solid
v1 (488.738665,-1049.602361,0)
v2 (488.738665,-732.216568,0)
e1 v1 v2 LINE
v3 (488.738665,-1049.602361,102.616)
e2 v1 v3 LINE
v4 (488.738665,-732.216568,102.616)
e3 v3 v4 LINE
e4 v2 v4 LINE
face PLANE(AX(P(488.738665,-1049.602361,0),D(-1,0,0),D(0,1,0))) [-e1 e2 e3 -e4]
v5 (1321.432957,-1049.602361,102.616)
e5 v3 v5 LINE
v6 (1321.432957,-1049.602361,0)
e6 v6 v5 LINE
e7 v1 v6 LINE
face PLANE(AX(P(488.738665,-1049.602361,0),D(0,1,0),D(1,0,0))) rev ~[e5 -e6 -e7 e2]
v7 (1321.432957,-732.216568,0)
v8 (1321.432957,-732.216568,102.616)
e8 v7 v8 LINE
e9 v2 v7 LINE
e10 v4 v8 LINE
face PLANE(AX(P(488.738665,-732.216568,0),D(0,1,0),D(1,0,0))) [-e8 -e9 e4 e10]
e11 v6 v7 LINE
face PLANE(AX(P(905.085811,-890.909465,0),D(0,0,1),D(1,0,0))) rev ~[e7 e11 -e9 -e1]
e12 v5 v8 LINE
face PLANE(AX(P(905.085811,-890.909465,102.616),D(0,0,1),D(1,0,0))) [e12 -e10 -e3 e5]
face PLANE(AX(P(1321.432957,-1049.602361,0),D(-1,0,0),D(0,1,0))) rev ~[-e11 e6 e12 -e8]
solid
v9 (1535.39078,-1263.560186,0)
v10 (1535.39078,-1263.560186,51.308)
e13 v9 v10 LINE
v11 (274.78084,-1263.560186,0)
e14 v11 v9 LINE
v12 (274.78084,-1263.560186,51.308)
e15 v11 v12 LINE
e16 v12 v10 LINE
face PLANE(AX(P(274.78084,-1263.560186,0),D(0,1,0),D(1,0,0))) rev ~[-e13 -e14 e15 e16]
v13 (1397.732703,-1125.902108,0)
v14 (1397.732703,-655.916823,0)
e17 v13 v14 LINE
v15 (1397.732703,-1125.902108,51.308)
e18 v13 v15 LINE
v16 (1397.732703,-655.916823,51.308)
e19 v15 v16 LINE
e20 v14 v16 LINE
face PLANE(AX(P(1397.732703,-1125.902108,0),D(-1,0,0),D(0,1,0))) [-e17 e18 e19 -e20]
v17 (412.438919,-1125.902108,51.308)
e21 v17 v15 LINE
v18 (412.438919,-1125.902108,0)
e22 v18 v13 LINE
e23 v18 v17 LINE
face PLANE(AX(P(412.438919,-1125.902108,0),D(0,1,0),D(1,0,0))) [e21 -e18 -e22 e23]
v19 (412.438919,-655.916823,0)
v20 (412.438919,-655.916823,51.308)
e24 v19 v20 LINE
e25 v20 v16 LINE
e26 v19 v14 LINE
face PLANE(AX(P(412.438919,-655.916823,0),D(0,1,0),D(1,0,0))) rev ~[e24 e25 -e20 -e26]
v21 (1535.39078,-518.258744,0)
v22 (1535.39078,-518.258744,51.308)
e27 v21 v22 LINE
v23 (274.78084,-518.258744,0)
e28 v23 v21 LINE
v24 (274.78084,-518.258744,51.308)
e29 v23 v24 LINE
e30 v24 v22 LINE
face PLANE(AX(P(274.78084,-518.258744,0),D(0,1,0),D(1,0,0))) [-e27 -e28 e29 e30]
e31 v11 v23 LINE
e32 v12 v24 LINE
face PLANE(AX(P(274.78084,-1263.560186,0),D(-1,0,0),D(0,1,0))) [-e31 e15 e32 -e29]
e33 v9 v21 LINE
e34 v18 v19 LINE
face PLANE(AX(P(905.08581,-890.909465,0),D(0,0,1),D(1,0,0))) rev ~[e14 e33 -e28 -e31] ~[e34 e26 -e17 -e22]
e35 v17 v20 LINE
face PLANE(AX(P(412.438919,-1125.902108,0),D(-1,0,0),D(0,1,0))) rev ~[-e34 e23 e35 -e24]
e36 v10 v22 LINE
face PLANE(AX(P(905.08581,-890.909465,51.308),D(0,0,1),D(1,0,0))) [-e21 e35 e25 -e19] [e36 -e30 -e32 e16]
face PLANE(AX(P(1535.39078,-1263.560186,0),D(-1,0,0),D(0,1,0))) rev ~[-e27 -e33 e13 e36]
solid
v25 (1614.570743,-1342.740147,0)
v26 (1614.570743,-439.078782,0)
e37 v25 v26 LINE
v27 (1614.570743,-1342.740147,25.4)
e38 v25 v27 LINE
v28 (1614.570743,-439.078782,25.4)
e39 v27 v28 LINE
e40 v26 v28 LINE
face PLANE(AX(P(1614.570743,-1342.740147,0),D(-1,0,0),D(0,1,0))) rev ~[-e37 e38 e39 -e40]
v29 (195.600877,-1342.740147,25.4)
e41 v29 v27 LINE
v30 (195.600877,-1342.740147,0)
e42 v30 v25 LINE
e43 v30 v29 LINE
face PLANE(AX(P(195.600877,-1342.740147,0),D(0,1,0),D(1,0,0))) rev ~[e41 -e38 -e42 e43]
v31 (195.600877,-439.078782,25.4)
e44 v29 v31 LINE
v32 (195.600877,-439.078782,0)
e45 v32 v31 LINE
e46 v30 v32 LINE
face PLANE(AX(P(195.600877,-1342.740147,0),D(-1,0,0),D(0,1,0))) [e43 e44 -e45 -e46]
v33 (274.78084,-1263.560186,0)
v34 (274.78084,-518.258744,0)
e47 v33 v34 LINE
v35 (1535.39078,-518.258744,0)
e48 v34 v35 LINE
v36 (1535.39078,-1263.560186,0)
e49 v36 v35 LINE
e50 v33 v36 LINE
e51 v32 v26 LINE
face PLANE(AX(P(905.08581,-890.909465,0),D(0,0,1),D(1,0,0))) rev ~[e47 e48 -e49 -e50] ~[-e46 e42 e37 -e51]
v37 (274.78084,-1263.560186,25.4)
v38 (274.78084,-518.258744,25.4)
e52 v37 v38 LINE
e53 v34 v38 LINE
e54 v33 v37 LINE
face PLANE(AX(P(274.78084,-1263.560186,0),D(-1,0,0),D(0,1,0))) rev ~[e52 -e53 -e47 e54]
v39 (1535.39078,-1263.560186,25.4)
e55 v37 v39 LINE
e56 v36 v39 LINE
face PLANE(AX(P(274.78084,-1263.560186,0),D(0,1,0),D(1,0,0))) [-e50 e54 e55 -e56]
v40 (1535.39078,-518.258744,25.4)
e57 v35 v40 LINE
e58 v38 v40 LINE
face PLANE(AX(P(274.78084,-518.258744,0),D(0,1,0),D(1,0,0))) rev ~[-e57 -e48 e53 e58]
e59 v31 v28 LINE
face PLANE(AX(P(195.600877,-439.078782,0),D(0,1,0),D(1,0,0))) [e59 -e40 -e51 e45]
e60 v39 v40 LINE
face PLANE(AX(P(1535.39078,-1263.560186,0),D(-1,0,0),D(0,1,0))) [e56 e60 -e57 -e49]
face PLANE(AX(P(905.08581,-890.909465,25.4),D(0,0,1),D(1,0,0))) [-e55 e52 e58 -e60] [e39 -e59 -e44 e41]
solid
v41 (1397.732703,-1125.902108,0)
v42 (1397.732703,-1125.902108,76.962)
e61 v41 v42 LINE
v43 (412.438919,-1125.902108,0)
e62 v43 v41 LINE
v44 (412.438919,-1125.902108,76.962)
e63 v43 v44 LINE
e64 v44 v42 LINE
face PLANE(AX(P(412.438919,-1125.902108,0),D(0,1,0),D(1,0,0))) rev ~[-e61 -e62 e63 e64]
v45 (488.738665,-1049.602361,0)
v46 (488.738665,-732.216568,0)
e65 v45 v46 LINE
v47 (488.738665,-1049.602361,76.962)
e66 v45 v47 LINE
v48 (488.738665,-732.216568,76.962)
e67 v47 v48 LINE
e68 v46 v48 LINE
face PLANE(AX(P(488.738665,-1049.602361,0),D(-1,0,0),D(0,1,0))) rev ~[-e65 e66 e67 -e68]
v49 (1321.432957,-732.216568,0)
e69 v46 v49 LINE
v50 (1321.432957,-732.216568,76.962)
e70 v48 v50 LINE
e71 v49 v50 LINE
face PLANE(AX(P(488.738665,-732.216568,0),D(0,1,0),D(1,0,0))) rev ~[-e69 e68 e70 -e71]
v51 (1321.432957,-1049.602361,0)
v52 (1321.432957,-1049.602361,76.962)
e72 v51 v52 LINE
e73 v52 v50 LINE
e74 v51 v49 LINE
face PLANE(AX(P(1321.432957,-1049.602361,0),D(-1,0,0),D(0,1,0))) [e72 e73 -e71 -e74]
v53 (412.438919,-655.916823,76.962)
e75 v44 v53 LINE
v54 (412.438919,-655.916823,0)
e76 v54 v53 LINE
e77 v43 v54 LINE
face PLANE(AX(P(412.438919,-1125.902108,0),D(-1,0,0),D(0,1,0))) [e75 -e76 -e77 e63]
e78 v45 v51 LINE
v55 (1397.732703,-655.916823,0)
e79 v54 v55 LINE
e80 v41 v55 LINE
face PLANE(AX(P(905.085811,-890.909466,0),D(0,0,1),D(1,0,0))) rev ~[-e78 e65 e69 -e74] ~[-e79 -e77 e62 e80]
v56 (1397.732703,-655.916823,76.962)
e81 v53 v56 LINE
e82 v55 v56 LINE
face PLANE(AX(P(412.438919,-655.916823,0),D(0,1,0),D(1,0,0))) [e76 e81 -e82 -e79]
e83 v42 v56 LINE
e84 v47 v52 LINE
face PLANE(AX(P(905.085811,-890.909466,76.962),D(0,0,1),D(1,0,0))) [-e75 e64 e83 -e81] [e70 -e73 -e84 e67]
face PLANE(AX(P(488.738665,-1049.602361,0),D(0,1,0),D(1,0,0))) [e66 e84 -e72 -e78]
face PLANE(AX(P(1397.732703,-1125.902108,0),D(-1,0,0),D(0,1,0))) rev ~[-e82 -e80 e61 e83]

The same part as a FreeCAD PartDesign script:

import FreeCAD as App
import Part
import Sketcher
from FreeCAD import Vector


def add_polygon(sketch, points):
    """Adds a closed chain of lines whose ends are joined by coincident constraints."""
    first, n = sketch.GeometryCount, len(points)
    for a, b in zip(points, points[1:] + points[:1]):
        sketch.addGeometry(Part.LineSegment(App.Vector(*a, 0), App.Vector(*b, 0)), False)
    for i in range(n):
        sketch.addConstraint(Sketcher.Constraint("Coincident", first + i, 2, first + (i + 1) % n, 1))

doc = App.newDocument("Part")
params = doc.addObject("Spreadsheet::Sheet", "Params")
for row, (alias, value) in enumerate([
    ("pad1_length", "1 in"),
    ("pad2_length", "2.02 in"),
    ("pad3_length", "3.03 in"),
    ("pad4_length", "4.04 in"),
], start=1):
    params.set(f"A{row}", alias)
    params.set(f"B{row}", "=" + value)
    params.setAlias(f"B{row}", alias)

body = doc.addObject("PartDesign::Body", "Body")

# Sketch on XY plane
sketch1 = body.newObject("Sketcher::SketchObject", "Sketch")
sketch1.AttachmentSupport = (doc.getObject("XY_Plane"), [""])
sketch1.MapMode = "FlatFace"
add_polygon(sketch1, [(195.600877, -439.078782), (195.600877, -1342.740147), (1614.570743, -1342.740147), (1614.570743, -439.078782)])  # lines 0-3
add_polygon(sketch1, [(1535.39078, -1263.560186), (274.78084, -1263.560186), (274.78084, -518.258744), (1535.39078, -518.258744)])  # lines 4-7
sketch1.addConstraint([
    Sketcher.Constraint("Vertical", 0),
    Sketcher.Constraint("Horizontal", 1),
    Sketcher.Constraint("Vertical", 2),
    Sketcher.Constraint("Horizontal", 3),
    Sketcher.Constraint("Horizontal", 4),
    Sketcher.Constraint("Vertical", 5),
    Sketcher.Constraint("Horizontal", 6),
    Sketcher.Constraint("Vertical", 7),
    Sketcher.Constraint("DistanceX", 4, 2, 4, 1, 1260.609941),
    Sketcher.Constraint("DistanceY", 5, 1, 5, 2, 745.301442),
    Sketcher.Constraint("DistanceX", 1, 1, 1, 2, 1418.969865),
    Sketcher.Constraint("DistanceY", 0, 2, 0, 1, 903.661365),
    Sketcher.Constraint("DistanceX", -1, 1, 4, 2, 274.78084),
    Sketcher.Constraint("DistanceY", 0, 2, 4, 2, 79.179961),
    Sketcher.Constraint("DistanceX", -1, 1, 0, 2, 195.600877),
    Sketcher.Constraint("DistanceY", 0, 2, -1, 1, 1342.740147),
])
pad1 = body.newObject("PartDesign::Pad", "Pad")
pad1.Profile = sketch1
pad1.setExpression("Length", "Params.pad1_length")
body2 = doc.addObject("PartDesign::Body", "Body001")

# Sketch on XY plane
sketch2 = body2.newObject("Sketcher::SketchObject", "Sketch001")
sketch2.AttachmentSupport = (doc.getObject("XY_Plane001"), [""])
sketch2.MapMode = "FlatFace"
add_polygon(sketch2, [(274.78084, -518.258744), (274.78084, -1263.560186), (1535.39078, -1263.560186), (1535.39078, -518.258744)])  # lines 0-3
add_polygon(sketch2, [(1397.732703, -1125.902108), (412.438919, -1125.902108), (412.438919, -655.916823), (1397.732703, -655.916823)])  # lines 4-7
sketch2.addConstraint([
    Sketcher.Constraint("Vertical", 0),
    Sketcher.Constraint("Horizontal", 1),
    Sketcher.Constraint("Vertical", 2),
    Sketcher.Constraint("Horizontal", 3),
    Sketcher.Constraint("Horizontal", 4),
    Sketcher.Constraint("Vertical", 5),
    Sketcher.Constraint("Horizontal", 6),
    Sketcher.Constraint("Vertical", 7),
    Sketcher.Constraint("DistanceX", 1, 1, 1, 2, 1260.609941),
    Sketcher.Constraint("DistanceY", 0, 2, 0, 1, 745.301442),
    Sketcher.Constraint("DistanceX", 4, 2, 4, 1, 985.293784),
    Sketcher.Constraint("DistanceY", 5, 1, 5, 2, 469.985285),
    Sketcher.Constraint("DistanceX", -1, 1, 0, 2, 274.78084),
    Sketcher.Constraint("DistanceX", -1, 1, 4, 2, 412.438919),
    Sketcher.Constraint("DistanceY", 4, 2, -1, 1, 1125.902108),
    Sketcher.Constraint("DistanceY", 5, 2, 3, 2, 137.658079),
])
pad2 = body2.newObject("PartDesign::Pad", "Pad001")
pad2.Profile = sketch2
pad2.setExpression("Length", "Params.pad2_length")
body3 = doc.addObject("PartDesign::Body", "Body002")

# Sketch on XY plane
sketch3 = body3.newObject("Sketcher::SketchObject", "Sketch002")
sketch3.AttachmentSupport = (doc.getObject("XY_Plane002"), [""])
sketch3.MapMode = "FlatFace"
add_polygon(sketch3, [(412.438919, -655.916823), (412.438919, -1125.902108), (1397.732703, -1125.902108), (1397.732703, -655.916823)])  # lines 0-3
add_polygon(sketch3, [(1321.432957, -1049.602361), (488.738665, -1049.602361), (488.738665, -732.216568), (1321.432957, -732.216568)])  # lines 4-7
sketch3.addConstraint([
    Sketcher.Constraint("Vertical", 0),
    Sketcher.Constraint("Horizontal", 1),
    Sketcher.Constraint("Vertical", 2),
    Sketcher.Constraint("Horizontal", 3),
    Sketcher.Constraint("Horizontal", 4),
    Sketcher.Constraint("Vertical", 5),
    Sketcher.Constraint("Horizontal", 6),
    Sketcher.Constraint("Vertical", 7),
    Sketcher.Constraint("DistanceX", 4, 2, 4, 1, 832.694292),
    Sketcher.Constraint("DistanceX", 1, 1, 1, 2, 985.293784),
    Sketcher.Constraint("DistanceY", 0, 2, 0, 1, 469.985285),
    Sketcher.Constraint("DistanceY", 5, 1, 5, 2, 317.385793),
    Sketcher.Constraint("DistanceX", -1, 1, 0, 2, 412.438919),
    Sketcher.Constraint("DistanceY", 0, 2, -1, 1, 1125.902108),
    Sketcher.Constraint("DistanceY", 4, 2, -1, 1, 1049.602361),
    Sketcher.Constraint("DistanceX", 3, 2, 6, 2, 908.994038),
])
pad3 = body3.newObject("PartDesign::Pad", "Pad002")
pad3.Profile = sketch3
pad3.setExpression("Length", "Params.pad3_length")
body4 = doc.addObject("PartDesign::Body", "Body003")

# Sketch on XY plane
sketch4 = body4.newObject("Sketcher::SketchObject", "Sketch003")
sketch4.AttachmentSupport = (doc.getObject("XY_Plane003"), [""])
sketch4.MapMode = "FlatFace"
add_polygon(sketch4, [(488.738665, -732.216568), (488.738665, -1049.602361), (1321.432957, -1049.602361), (1321.432957, -732.216568)])  # lines 0-3
sketch4.addConstraint([
    Sketcher.Constraint("Vertical", 0),
    Sketcher.Constraint("Horizontal", 1),
    Sketcher.Constraint("Vertical", 2),
    Sketcher.Constraint("Horizontal", 3),
    Sketcher.Constraint("DistanceX", 1, 1, 1, 2, 832.694292),
    Sketcher.Constraint("DistanceY", 0, 2, 0, 1, 317.385793),
    Sketcher.Constraint("DistanceY", 0, 2, -1, 1, 1049.602361),
    Sketcher.Constraint("DistanceX", -1, 1, 0, 2, 488.738665),
])
pad4 = body4.newObject("PartDesign::Pad", "Pad003")
pad4.Profile = sketch4
pad4.setExpression("Length", "Params.pad4_length")

doc.recompute()
